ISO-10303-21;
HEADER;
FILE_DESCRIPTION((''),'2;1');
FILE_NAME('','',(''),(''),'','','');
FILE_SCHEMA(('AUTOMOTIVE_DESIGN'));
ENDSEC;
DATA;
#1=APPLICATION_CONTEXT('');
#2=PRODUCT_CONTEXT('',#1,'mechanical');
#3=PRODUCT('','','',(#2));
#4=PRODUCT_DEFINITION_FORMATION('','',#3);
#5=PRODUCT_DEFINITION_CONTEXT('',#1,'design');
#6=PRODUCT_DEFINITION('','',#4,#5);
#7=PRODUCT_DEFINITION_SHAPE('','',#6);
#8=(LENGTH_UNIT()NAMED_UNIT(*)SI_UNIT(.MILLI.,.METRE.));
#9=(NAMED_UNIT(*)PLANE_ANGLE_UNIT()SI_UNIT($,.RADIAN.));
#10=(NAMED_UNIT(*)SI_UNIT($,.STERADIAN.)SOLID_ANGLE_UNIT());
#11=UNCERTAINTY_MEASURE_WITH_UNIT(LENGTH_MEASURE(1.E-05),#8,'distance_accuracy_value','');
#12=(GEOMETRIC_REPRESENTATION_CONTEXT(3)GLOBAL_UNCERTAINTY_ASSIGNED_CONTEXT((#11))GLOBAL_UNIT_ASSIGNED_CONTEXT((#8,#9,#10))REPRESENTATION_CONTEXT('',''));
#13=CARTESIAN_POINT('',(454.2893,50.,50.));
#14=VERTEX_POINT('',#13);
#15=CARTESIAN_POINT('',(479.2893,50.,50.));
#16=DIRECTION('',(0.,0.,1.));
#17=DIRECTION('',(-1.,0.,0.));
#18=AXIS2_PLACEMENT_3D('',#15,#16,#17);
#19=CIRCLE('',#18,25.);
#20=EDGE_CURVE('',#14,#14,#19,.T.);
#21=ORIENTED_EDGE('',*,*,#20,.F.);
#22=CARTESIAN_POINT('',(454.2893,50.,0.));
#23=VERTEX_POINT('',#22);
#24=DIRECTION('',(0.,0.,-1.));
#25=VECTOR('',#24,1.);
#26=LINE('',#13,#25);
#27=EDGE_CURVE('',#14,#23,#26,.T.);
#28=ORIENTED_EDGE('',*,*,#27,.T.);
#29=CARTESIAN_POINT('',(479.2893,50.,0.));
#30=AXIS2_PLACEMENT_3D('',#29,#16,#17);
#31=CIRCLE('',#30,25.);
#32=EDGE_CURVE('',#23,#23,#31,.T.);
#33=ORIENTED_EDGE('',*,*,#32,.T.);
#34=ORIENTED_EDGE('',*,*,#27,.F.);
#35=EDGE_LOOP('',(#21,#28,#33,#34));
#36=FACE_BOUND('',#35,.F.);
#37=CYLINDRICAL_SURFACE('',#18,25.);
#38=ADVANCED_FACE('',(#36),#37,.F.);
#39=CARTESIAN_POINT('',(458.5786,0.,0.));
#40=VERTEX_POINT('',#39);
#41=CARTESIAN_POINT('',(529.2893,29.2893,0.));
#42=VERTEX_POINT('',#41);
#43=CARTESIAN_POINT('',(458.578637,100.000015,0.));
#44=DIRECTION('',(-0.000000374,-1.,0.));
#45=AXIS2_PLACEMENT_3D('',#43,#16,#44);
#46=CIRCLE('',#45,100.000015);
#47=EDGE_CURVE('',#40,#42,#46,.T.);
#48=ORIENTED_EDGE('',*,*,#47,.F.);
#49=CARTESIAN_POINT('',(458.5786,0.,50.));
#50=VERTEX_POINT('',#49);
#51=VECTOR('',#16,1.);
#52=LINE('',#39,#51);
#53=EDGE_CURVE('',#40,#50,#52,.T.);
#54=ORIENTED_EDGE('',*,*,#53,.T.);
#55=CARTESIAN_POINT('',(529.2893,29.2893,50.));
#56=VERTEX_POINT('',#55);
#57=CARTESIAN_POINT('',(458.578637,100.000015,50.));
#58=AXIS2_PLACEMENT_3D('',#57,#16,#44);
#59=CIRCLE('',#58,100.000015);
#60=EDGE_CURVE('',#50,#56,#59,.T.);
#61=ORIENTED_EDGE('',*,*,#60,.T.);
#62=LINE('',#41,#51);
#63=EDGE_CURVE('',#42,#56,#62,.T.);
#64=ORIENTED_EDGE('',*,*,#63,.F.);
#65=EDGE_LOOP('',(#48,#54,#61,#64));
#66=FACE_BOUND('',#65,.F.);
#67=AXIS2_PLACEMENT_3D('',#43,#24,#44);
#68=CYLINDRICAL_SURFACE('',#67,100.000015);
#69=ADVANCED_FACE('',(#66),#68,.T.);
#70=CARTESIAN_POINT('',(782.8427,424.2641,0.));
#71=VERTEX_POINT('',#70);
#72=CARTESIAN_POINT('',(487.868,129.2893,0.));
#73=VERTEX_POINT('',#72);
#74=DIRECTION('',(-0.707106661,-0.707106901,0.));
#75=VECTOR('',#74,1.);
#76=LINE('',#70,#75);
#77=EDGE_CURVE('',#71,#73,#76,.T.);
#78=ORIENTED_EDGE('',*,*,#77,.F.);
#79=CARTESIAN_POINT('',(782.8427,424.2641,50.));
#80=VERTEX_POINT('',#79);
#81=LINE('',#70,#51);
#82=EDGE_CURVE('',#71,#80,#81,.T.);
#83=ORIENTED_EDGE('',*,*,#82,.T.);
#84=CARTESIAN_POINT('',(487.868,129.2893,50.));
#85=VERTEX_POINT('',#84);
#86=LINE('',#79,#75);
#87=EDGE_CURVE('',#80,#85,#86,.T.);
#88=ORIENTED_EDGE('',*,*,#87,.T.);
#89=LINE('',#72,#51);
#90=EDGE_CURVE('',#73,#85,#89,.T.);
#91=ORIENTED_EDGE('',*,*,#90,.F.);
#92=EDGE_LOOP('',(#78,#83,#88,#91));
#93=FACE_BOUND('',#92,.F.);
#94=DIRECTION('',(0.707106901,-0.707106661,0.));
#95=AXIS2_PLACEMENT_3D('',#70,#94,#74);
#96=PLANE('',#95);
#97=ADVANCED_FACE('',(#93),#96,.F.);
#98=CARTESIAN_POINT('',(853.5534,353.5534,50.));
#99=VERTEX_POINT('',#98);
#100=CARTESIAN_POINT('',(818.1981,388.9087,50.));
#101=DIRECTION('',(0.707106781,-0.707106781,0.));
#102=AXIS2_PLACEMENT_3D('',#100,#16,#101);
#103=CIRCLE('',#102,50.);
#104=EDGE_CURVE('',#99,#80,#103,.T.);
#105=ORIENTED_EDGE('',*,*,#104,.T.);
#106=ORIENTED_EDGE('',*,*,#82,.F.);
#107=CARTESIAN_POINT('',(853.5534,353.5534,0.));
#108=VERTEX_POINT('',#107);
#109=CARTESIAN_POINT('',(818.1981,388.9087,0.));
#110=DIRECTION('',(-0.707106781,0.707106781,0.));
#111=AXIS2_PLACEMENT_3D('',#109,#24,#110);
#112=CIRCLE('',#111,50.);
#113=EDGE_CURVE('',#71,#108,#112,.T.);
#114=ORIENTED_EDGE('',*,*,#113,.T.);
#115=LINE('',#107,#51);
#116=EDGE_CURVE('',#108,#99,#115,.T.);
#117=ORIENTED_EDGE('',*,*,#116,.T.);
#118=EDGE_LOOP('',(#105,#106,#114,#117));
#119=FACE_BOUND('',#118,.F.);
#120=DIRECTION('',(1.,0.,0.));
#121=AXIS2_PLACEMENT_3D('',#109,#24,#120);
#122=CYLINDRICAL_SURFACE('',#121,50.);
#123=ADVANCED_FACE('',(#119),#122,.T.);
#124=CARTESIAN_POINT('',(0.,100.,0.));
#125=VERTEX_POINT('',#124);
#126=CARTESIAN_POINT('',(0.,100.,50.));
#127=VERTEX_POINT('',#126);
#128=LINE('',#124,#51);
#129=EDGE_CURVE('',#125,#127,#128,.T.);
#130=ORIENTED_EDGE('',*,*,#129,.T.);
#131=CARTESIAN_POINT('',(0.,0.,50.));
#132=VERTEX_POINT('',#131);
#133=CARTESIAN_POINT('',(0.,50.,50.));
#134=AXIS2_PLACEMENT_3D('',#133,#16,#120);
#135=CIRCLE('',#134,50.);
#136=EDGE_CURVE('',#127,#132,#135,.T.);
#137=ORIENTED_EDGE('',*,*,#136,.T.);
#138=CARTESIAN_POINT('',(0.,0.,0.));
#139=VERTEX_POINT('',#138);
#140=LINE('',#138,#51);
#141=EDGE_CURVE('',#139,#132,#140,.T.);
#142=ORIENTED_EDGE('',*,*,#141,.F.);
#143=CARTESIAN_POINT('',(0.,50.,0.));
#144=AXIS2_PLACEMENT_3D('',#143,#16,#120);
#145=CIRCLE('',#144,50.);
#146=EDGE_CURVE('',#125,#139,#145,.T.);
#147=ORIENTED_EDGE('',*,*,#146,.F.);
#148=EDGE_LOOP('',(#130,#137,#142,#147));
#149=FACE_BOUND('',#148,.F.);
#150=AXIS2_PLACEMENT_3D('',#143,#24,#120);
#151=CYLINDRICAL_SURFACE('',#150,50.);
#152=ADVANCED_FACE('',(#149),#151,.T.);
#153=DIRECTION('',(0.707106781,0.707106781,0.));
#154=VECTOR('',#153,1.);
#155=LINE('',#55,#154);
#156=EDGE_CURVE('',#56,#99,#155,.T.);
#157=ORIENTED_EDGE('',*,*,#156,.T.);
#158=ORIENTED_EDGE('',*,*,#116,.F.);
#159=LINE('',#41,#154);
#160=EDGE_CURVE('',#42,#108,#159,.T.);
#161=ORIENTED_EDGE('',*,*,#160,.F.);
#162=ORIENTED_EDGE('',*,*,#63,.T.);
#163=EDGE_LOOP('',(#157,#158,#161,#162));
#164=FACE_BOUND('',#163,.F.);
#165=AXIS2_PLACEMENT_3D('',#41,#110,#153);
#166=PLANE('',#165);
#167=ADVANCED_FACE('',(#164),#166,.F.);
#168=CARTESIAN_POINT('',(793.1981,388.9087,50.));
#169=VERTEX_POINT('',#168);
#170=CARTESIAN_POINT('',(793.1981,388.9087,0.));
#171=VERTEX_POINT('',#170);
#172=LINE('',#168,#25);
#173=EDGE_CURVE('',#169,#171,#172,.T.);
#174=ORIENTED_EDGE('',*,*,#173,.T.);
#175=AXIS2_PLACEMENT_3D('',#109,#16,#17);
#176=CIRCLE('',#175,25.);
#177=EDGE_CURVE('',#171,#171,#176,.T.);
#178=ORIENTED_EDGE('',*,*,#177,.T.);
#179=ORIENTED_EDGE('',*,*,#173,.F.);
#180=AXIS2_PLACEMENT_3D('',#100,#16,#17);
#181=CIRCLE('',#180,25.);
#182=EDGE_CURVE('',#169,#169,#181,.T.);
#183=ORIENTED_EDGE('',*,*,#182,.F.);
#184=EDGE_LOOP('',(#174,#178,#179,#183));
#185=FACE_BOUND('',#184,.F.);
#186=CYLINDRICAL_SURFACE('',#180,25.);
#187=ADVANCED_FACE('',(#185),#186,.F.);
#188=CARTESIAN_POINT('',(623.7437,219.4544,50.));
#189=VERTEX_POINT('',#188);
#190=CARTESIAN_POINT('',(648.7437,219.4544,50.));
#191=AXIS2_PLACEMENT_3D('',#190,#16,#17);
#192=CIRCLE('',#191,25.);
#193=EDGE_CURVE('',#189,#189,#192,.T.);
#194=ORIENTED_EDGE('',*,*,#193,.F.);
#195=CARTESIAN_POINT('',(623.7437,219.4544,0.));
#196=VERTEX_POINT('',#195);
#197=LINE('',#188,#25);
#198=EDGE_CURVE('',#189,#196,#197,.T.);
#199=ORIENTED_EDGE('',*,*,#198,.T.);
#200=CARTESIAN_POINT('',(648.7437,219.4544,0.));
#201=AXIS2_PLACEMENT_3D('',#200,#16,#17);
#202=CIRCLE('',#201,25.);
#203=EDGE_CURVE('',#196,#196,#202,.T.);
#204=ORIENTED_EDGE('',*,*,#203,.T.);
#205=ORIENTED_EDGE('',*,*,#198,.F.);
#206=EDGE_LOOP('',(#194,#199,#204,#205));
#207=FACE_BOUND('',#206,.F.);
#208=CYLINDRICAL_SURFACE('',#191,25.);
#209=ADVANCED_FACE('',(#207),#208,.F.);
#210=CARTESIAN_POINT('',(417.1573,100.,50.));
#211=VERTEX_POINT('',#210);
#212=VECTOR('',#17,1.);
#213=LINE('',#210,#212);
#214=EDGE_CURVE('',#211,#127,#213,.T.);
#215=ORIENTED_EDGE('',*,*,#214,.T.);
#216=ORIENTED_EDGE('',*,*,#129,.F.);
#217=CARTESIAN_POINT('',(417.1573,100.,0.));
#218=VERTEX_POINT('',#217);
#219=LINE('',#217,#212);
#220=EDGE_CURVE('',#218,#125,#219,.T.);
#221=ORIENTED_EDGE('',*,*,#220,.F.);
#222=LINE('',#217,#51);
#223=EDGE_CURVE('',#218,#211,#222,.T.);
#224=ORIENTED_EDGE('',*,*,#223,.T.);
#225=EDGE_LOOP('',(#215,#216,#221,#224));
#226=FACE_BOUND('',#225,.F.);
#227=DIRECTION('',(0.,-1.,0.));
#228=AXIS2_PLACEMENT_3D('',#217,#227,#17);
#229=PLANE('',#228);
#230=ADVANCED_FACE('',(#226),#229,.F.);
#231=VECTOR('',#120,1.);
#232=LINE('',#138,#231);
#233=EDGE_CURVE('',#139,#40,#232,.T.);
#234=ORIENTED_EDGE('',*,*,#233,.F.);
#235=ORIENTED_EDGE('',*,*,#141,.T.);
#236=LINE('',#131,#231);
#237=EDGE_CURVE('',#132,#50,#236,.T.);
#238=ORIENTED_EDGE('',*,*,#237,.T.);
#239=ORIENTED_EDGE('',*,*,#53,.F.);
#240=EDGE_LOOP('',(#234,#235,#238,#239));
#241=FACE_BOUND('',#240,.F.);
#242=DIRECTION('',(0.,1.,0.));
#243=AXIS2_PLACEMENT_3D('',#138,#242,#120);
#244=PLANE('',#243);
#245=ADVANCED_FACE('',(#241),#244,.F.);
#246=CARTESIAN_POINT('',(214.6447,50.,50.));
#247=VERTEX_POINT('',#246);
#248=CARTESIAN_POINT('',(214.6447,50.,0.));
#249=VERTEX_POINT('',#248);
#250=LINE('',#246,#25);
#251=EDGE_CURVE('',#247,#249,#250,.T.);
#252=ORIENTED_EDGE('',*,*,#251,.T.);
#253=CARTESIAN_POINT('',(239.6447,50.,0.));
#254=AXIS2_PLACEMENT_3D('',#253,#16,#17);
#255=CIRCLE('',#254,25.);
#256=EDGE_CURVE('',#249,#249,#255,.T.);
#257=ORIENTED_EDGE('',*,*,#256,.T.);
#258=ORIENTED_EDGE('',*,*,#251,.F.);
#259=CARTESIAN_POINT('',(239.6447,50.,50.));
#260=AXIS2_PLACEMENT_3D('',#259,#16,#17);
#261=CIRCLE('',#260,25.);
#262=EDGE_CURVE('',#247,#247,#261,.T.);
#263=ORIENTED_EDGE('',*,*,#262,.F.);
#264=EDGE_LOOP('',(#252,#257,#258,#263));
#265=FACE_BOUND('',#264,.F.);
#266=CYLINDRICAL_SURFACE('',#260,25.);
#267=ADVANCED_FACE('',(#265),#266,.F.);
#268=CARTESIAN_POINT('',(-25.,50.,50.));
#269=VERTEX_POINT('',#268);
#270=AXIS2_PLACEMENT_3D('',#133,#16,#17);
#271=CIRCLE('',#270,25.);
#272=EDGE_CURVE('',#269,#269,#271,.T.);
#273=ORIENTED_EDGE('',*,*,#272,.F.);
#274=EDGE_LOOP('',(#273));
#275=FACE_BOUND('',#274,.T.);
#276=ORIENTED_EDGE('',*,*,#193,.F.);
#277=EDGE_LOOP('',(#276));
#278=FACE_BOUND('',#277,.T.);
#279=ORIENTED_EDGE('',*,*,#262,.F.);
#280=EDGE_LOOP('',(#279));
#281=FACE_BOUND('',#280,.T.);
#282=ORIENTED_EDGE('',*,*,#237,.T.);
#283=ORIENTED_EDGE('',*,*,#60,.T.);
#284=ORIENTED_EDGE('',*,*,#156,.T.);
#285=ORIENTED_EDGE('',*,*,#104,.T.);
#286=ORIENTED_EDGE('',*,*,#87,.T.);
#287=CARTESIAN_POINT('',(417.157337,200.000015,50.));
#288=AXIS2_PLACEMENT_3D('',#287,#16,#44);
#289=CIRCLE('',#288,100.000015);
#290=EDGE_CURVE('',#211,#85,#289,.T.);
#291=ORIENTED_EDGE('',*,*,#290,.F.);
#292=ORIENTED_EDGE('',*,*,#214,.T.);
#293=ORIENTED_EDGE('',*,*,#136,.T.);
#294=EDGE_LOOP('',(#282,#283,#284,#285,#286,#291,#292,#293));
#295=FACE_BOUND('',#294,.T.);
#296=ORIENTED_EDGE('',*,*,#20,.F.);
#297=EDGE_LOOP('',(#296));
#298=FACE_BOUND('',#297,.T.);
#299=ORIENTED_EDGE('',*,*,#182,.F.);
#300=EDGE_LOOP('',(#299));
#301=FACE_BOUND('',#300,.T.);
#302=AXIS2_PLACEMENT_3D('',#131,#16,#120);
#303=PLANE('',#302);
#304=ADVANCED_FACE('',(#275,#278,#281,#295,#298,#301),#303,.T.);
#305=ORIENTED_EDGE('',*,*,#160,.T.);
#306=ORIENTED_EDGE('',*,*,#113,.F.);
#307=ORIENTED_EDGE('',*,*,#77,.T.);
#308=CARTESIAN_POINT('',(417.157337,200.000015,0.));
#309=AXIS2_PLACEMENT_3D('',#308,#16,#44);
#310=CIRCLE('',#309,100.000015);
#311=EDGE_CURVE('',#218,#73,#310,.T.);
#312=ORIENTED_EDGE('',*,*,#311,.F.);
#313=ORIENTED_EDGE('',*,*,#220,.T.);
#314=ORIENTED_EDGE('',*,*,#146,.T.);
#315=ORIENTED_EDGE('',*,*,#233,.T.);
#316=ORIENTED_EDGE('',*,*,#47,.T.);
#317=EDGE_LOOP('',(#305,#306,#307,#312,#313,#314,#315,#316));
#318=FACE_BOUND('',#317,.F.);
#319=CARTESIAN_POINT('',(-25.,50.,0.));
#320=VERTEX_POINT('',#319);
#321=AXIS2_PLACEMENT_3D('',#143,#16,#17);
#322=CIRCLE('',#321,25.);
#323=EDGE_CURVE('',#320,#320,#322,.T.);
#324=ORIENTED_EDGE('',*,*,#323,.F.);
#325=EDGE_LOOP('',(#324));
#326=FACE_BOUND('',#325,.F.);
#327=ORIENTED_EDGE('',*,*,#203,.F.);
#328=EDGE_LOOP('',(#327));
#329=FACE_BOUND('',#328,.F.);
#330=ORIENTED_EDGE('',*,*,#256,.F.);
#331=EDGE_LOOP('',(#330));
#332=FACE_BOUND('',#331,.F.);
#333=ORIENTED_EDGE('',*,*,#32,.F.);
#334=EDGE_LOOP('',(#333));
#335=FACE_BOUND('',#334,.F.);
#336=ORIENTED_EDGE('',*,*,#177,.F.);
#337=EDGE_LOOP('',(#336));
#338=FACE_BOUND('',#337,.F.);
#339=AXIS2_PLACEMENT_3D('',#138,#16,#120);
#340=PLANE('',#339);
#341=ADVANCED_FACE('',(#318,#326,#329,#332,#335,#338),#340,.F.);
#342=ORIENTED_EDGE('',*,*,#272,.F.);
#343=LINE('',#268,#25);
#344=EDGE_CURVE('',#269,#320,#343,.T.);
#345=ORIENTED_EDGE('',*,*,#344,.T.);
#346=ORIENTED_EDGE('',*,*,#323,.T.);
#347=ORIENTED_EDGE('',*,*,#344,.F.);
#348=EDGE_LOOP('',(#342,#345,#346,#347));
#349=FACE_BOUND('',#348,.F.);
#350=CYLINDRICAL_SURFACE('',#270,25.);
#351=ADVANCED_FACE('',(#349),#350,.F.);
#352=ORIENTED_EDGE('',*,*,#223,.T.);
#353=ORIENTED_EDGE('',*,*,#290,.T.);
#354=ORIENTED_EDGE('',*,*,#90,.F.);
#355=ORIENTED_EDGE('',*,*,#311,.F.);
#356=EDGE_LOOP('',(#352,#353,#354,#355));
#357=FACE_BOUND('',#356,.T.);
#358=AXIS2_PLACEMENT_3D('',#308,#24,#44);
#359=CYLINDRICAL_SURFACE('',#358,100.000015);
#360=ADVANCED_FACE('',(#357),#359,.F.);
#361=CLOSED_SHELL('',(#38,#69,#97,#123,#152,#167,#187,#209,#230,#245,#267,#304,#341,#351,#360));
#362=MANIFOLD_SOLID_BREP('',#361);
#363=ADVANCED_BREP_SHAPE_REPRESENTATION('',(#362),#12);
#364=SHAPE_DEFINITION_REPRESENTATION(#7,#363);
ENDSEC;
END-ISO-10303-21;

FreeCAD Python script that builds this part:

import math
import FreeCAD as App
import Part
import Sketcher
from FreeCAD import Vector
Q = App.Units.Quantity

doc = App.newDocument("Part")
body = doc.addObject("PartDesign::Body", "Body")

sketch1 = doc.addObject("Sketcher::SketchObject", "Sketch")
body.addObject(sketch1)
sketch1.AttachmentSupport = (doc.XY_Plane, [""])
sketch1.MapMode = "FlatFace"
sketch1.addGeometry([
    Part.LineSegment(Vector(417.1573, 100, 0), Vector(0, 100, 0)),
    Part.ArcOfCircle(Part.Circle(Vector(0, 50, 0), Vector(0, 0, 1), 50), math.radians(90), math.radians(270)),
    Part.LineSegment(Vector(0, 0, 0), Vector(458.5786, 0, 0)),
    Part.ArcOfCircle(Part.Circle(Vector(458.5786, 100, 0), Vector(0, 0, 1), 100), math.radians(-90), math.radians(-45)),
    Part.LineSegment(Vector(529.2893, 29.2893, 0), Vector(853.5534, 353.5534, 0)),
    Part.ArcOfCircle(Part.Circle(Vector(818.1981, 388.9087, 0), Vector(0, 0, 1), 50), math.radians(-45), math.radians(135)),
    Part.LineSegment(Vector(782.8427, 424.2641, 0), Vector(487.868, 129.2893, 0)),
    Part.ArcOfCircle(Part.Circle(Vector(417.1573, 200, 0), Vector(0, 0, 1), 100), math.radians(-90), math.radians(-45)),
], False)
sketch1.addConstraint([
    Sketcher.Constraint("Tangent", 0, 2, 1, 1),
    Sketcher.Constraint("Tangent", 1, 2, 2, 1),
    Sketcher.Constraint("Tangent", 2, 2, 3, 1),
    Sketcher.Constraint("Tangent", 3, 2, 4, 1),
    Sketcher.Constraint("Tangent", 4, 2, 5, 1),
    Sketcher.Constraint("Tangent", 5, 2, 6, 1),
    Sketcher.Constraint("Tangent", 6, 2, 7, 2),
    Sketcher.Constraint("Tangent", 7, 1, 0, 1),
    Sketcher.Constraint("Horizontal", 0),
    Sketcher.Constraint("Horizontal", 2),
    Sketcher.Constraint("Coincident", 1, 2, -1, 1),
    Sketcher.Constraint("Equal", 1, 5),
    Sketcher.Constraint("Equal", 3, 7),
    Sketcher.Constraint("Parallel", 4, 6),
    Sketcher.Constraint("Horizontal", 3, 3, 0, 2),
    Sketcher.Constraint("Radius", 1, 50.0),
    Sketcher.Constraint("Angle", 4, Q("45 deg")),
    Sketcher.Constraint("DistanceX", 0, 2, 0, 1, 417.1573),
    Sketcher.Constraint("DistanceX", -1, 1, 5, 3, 818.198),
])
pad1 = doc.addObject("PartDesign::Pad", "Pad")
body.addObject(pad1)
pad1.Profile = sketch1
pad1.Length = 50

sketch2 = doc.addObject("Sketcher::SketchObject", "Sketch001")
body.addObject(sketch2)
sketch2.AttachmentSupport = (doc.XY_Plane, [""])
sketch2.MapMode = "FlatFace"
sketch2.AttachmentOffset = App.Placement(Vector(0, 0, 50), App.Rotation())
sketch2.addGeometry([
    Part.Circle(Vector(0, 50, 0), Vector(0, 0, 1), 25),
    Part.Circle(Vector(239.6447, 50, 0), Vector(0, 0, 1), 25),
    Part.Circle(Vector(479.2893, 50, 0), Vector(0, 0, 1), 25),
    Part.Circle(Vector(648.7437, 219.4544, 0), Vector(0, 0, 1), 25),
    Part.Circle(Vector(818.1981, 388.9087, 0), Vector(0, 0, 1), 25),
], False)
sketch2.addConstraint([
    Sketcher.Constraint("Equal", 0, 1),
    Sketcher.Constraint("Equal", 1, 2),
    Sketcher.Constraint("Equal", 2, 3),
    Sketcher.Constraint("Equal", 3, 4),
    Sketcher.Constraint("PointOnObject", 0, 3, -2),
    Sketcher.Constraint("Horizontal", 0, 3, 1, 3),
    Sketcher.Constraint("Horizontal", 1, 3, 2, 3),
    Sketcher.Constraint("Diameter", 0, 50.0),
    Sketcher.Constraint("DistanceY", -1, 1, 0, 3, 50.0),
    Sketcher.Constraint("DistanceX", -1, 1, 4, 3, 818.198),
    Sketcher.Constraint("DistanceX", 1, 3, 3, 3, 409.099),
    Sketcher.Constraint("DistanceX", -1, 1, 1, 3, 239.6447),
    Sketcher.Constraint("DistanceX", -1, 1, 2, 3, 479.2893),
    Sketcher.Constraint("DistanceY", -1, 1, 3, 3, 219.4544),
    Sketcher.Constraint("DistanceY", -1, 1, 4, 3, 388.9087),
])
pocket1 = doc.addObject("PartDesign::Pocket", "Pocket")
body.addObject(pocket1)
pocket1.Profile = sketch2
pocket1.Length = 200

doc.recompute()
